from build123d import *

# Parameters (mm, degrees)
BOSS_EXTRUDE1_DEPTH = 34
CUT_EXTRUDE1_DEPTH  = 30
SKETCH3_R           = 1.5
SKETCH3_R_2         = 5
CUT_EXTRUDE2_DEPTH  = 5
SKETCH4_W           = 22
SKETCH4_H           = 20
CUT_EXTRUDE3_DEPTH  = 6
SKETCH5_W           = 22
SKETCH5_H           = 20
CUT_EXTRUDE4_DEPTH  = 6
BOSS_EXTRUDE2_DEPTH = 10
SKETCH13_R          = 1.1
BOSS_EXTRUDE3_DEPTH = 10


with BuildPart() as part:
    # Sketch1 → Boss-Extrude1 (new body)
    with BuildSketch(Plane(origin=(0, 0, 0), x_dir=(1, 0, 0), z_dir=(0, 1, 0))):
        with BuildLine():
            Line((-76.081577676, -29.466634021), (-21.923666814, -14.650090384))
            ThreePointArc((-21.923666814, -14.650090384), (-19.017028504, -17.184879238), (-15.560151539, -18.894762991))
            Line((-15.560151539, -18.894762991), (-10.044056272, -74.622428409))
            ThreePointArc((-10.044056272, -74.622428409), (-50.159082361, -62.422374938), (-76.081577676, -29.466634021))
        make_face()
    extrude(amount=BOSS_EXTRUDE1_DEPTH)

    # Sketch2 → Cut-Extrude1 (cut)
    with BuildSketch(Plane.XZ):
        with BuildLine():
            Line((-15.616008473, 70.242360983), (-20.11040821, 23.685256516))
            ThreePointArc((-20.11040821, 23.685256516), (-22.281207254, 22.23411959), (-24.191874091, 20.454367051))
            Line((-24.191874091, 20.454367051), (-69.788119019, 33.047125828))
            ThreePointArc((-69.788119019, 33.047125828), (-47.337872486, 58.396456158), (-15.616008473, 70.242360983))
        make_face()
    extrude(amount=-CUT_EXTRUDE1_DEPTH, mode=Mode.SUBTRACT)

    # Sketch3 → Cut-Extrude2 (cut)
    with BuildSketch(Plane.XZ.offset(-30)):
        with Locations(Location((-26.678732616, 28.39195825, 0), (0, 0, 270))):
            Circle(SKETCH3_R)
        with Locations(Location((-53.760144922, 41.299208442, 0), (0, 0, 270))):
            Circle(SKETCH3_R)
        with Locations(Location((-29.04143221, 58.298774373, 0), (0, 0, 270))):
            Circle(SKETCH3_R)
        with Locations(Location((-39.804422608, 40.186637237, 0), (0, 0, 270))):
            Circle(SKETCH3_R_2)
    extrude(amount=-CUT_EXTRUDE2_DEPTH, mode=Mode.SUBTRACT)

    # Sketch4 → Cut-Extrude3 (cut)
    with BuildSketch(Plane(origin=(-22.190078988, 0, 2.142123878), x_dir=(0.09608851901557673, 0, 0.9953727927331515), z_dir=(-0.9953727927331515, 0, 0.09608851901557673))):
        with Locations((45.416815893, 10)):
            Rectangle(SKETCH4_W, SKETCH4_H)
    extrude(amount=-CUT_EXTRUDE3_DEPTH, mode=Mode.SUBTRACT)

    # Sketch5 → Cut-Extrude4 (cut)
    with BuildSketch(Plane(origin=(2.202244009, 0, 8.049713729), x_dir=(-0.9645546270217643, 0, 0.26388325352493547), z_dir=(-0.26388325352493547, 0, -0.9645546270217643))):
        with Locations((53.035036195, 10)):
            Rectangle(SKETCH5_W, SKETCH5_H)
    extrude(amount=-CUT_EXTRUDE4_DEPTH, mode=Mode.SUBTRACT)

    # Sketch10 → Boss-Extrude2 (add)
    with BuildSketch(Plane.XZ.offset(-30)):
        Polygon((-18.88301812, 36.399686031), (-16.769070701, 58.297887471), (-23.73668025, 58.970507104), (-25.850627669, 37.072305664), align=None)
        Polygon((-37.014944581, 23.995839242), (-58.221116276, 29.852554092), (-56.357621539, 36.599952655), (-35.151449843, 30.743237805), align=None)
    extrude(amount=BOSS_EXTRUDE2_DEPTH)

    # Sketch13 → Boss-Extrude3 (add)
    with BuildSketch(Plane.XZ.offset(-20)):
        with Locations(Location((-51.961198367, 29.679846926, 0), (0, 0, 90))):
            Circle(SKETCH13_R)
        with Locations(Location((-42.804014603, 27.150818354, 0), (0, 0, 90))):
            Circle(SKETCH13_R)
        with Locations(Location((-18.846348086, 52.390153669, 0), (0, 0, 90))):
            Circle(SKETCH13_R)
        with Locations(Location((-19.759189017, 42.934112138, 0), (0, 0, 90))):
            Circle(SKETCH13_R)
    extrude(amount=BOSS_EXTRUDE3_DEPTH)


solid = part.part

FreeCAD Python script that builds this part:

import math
import FreeCAD as App
import Part
import Sketcher
from FreeCAD import Vector
Q = App.Units.Quantity

doc = App.newDocument("Part")
body = doc.addObject("PartDesign::Body", "Body")

sketch1 = body.newObject("Sketcher::SketchObject", "Sketch")
sketch1.AttachmentSupport = (doc.getObject("XZ_Plane"), [""])
sketch1.MapMode = "FlatFace"
sketch1.addGeometry(Part.LineSegment(Vector(-22, 15, 0), Vector(-76, 29, 0)), False)
sketch1.addGeometry(Part.ArcOfCircle(Part.Circle(Vector(-11, 5, 0), Vector(0, 0, 1), 70), math.radians(89), math.radians(159)), False)
sketch1.addGeometry(Part.LineSegment(Vector(-10, 75, 0), Vector(-16, 19, 0)), False)
sketch1.addGeometry(Part.ArcOfCircle(Part.Circle(Vector(-11, 5, 0), Vector(0, 0, 1), 15), math.radians(109), math.radians(138)), False)
sketch1.addConstraint(Sketcher.Constraint("Coincident", 0, 2, 1, 2))
sketch1.addConstraint(Sketcher.Constraint("Coincident", 1, 1, 2, 1))
sketch1.addConstraint(Sketcher.Constraint("Coincident", 2, 2, 3, 1))
sketch1.addConstraint(Sketcher.Constraint("Coincident", 3, 2, 0, 1))
sketch1.addConstraint(Sketcher.Constraint("Coincident", 3, 3, 1, 3))
sketch1.addConstraint(Sketcher.Constraint("Radius", 3, Q("15 mm")))
sketch1.addConstraint(Sketcher.Constraint("Distance", 2, Q("56 mm")))
sketch1.addConstraint(Sketcher.Constraint("Radius", 1, Q("69.91921 mm")))
sketch1.addConstraint(Sketcher.Constraint("Distance", 0, Q("56.148101 mm")))
sketch1.addConstraint(Sketcher.Constraint("DistanceY", 3, 3, 0, 2, Q("24.760401 mm")))
sketch1.addConstraint(Sketcher.Constraint("DistanceY", -1, 1, 1, 1, Q("74.622428 mm")))
sketch1.addConstraint(Sketcher.Constraint("DistanceX", 2, 2, -1, 1, Q("15.560152 mm")))
sketch1.addConstraint(Sketcher.Constraint("DistanceX", 0, 2, 1, 1, Q("66.037521 mm")))
pad1 = body.newObject("PartDesign::Pad", "Pad")
pad1.Profile = sketch1
pad1.Length = 34
pad1.Reversed = True

sketch2 = body.newObject("Sketcher::SketchObject", "Sketch001")
sketch2.AttachmentSupport = (doc.getObject("XZ_Plane"), [""])
sketch2.MapMode = "FlatFace"
sketch2.addGeometry(Part.LineSegment(Vector(-20, 24, 0), Vector(-16, 70, 0)), False)
sketch2.addGeometry(Part.ArcOfCircle(Part.Circle(Vector(-8, 1, 0), Vector(0, 0, 1), 70), math.radians(96), math.radians(152)), False)
sketch2.addGeometry(Part.LineSegment(Vector(-70, 33, 0), Vector(-24, 20, 0)), False)
sketch2.addGeometry(Part.ArcOfCircle(Part.Circle(Vector(-12, 9, 0), Vector(0, 0, 1), 16), math.radians(119.16), math.radians(137.57)), False)
sketch2.addConstraint(Sketcher.Constraint("Coincident", 0, 2, 1, 1))
sketch2.addConstraint(Sketcher.Constraint("Coincident", 1, 2, 2, 1))
sketch2.addConstraint(Sketcher.Constraint("Coincident", 2, 2, 3, 2))
sketch2.addConstraint(Sketcher.Constraint("Coincident", 3, 1, 0, 1))
sketch2.addConstraint(Sketcher.Constraint("Radius", 1, Q("70 mm")))
sketch2.addConstraint(Sketcher.Constraint("Radius", 3, Q("16.268028 mm")))
sketch2.addConstraint(Sketcher.Constraint("DistanceX", 3, 1, 0, 2, Q("4.4944 mm")))
sketch2.addConstraint(Sketcher.Constraint("DistanceX", 1, 3, -1, 1, Q("7.715649 mm")))
sketch2.addConstraint(Sketcher.Constraint("DistanceX", 0, 2, -1, 1, Q("15.616008 mm")))
sketch2.addConstraint(Sketcher.Constraint("DistanceY", -1, 1, 0, 2, Q("70.242361 mm")))
sketch2.addConstraint(Sketcher.Constraint("DistanceX", 1, 2, -1, 1, Q("69.788119 mm")))
sketch2.addConstraint(Sketcher.Constraint("DistanceY", 1, 3, 3, 3, Q("8.789212 mm")))
sketch2.addConstraint(Sketcher.Constraint("DistanceX", 2, 2, 3, 3, Q("12.007759 mm")))
sketch2.addConstraint(Sketcher.Constraint("DistanceY", 2, 2, 3, 1, Q("3.230889 mm")))
pocket1 = body.newObject("PartDesign::Pocket", "Pocket")
pocket1.Profile = sketch2
pocket1.Length = 30

sketch3 = body.newObject("Sketcher::SketchObject", "Sketch002")
sketch3.AttachmentSupport = (doc.getObject("XZ_Plane"), [""])
sketch3.MapMode = "FlatFace"
sketch3.AttachmentOffset = App.Placement(Vector(0, 0, -30), App.Rotation())
sketch3.addGeometry(Part.Circle(Vector(-26.7, 28.4, 0), Vector(0, 0, 1), 1.5), False)
sketch3.addGeometry(Part.Circle(Vector(-53.8, 41.3, 0), Vector(0, 0, 1), 1.5), False)
sketch3.addGeometry(Part.Circle(Vector(-29, 58.3, 0), Vector(0, 0, 1), 1.5), False)
sketch3.addGeometry(Part.Circle(Vector(-39.8, 40.2, 0), Vector(0, 0, 1), 5), False)
sketch3.addConstraint(Sketcher.Constraint("Equal", 0, 1))
sketch3.addConstraint(Sketcher.Constraint("Equal", 1, 2))
sketch3.addConstraint(Sketcher.Constraint("Diameter", 0, Q("3 mm")))
sketch3.addConstraint(Sketcher.Constraint("Diameter", 3, Q("10 mm")))
sketch3.addConstraint(Sketcher.Constraint("DistanceX", 2, 3, 0, 3, Q("2.3627 mm")))
sketch3.addConstraint(Sketcher.Constraint("DistanceY", -1, 1, 0, 3, Q("28.391958 mm")))
sketch3.addConstraint(Sketcher.Constraint("DistanceY", -1, 1, 1, 3, Q("41.299208 mm")))
sketch3.addConstraint(Sketcher.Constraint("DistanceY", 3, 3, 1, 3, Q("1.112571 mm")))
sketch3.addConstraint(Sketcher.Constraint("DistanceX", 3, 3, 0, 3, Q("13.12569 mm")))
sketch3.addConstraint(Sketcher.Constraint("DistanceX", 0, 3, -1, 1, Q("26.678733 mm")))
sketch3.addConstraint(Sketcher.Constraint("DistanceX", 1, 3, -1, 1, Q("53.760145 mm")))
sketch3.addConstraint(Sketcher.Constraint("DistanceY", -1, 1, 2, 3, Q("58.298774 mm")))
pocket2 = body.newObject("PartDesign::Pocket", "Pocket001")
pocket2.Profile = sketch3
pocket2.Length = 5

sketch4 = body.newObject("Sketcher::SketchObject", "Sketch003")
sketch4.Placement = App.Placement(Vector(-22.190079, 0, 2.142124), App.Rotation(Vector(0.096088519, 0, 0.995372793), Vector(0, 1.000000001, 0), Vector(-0.995372793, 0, 0.096088519), "ZXY"))
sketch4.addGeometry(Part.LineSegment(Vector(34, 20, 0), Vector(34, 0, 0)), False)
sketch4.addGeometry(Part.LineSegment(Vector(34, 0, 0), Vector(56, 0, 0)), False)
sketch4.addGeometry(Part.LineSegment(Vector(56, 0, 0), Vector(56, 20, 0)), False)
sketch4.addGeometry(Part.LineSegment(Vector(56, 20, 0), Vector(34, 20, 0)), False)
sketch4.addConstraint(Sketcher.Constraint("Coincident", 0, 2, 1, 1))
sketch4.addConstraint(Sketcher.Constraint("Coincident", 1, 2, 2, 1))
sketch4.addConstraint(Sketcher.Constraint("Coincident", 2, 2, 3, 1))
sketch4.addConstraint(Sketcher.Constraint("Coincident", 3, 2, 0, 1))
sketch4.addConstraint(Sketcher.Constraint("Vertical", 0))
sketch4.addConstraint(Sketcher.Constraint("Horizontal", 1))
sketch4.addConstraint(Sketcher.Constraint("Vertical", 2))
sketch4.addConstraint(Sketcher.Constraint("Horizontal", 3))
sketch4.addConstraint(Sketcher.Constraint("PointOnObject", 0, 2, -1))
sketch4.addConstraint(Sketcher.Constraint("DistanceX", 1, 1, 1, 2, Q("22 mm")))
sketch4.addConstraint(Sketcher.Constraint("DistanceY", 0, 2, 0, 1, Q("20 mm")))
sketch4.addConstraint(Sketcher.Constraint("DistanceX", -1, 1, 0, 2, Q("34.416816 mm")))
pocket3 = body.newObject("PartDesign::Pocket", "Pocket002")
pocket3.Profile = sketch4
pocket3.Length = 6

sketch5 = body.newObject("Sketcher::SketchObject", "Sketch004")
sketch5.Placement = App.Placement(Vector(2.202244, 0, 8.049714), App.Rotation(Vector(-0.964554627, 0, 0.263883254), Vector(0, 1, 0), Vector(-0.263883254, 0, -0.964554627), "ZXY"))
sketch5.addGeometry(Part.LineSegment(Vector(42, 20, 0), Vector(42, 0, 0)), False)
sketch5.addGeometry(Part.LineSegment(Vector(42, 0, 0), Vector(64, 0, 0)), False)
sketch5.addGeometry(Part.LineSegment(Vector(64, 0, 0), Vector(64, 20, 0)), False)
sketch5.addGeometry(Part.LineSegment(Vector(64, 20, 0), Vector(42, 20, 0)), False)
sketch5.addConstraint(Sketcher.Constraint("Coincident", 0, 2, 1, 1))
sketch5.addConstraint(Sketcher.Constraint("Coincident", 1, 2, 2, 1))
sketch5.addConstraint(Sketcher.Constraint("Coincident", 2, 2, 3, 1))
sketch5.addConstraint(Sketcher.Constraint("Coincident", 3, 2, 0, 1))
sketch5.addConstraint(Sketcher.Constraint("Vertical", 0))
sketch5.addConstraint(Sketcher.Constraint("Horizontal", 1))
sketch5.addConstraint(Sketcher.Constraint("Vertical", 2))
sketch5.addConstraint(Sketcher.Constraint("Horizontal", 3))
sketch5.addConstraint(Sketcher.Constraint("PointOnObject", 0, 2, -1))
sketch5.addConstraint(Sketcher.Constraint("DistanceX", 1, 1, 1, 2, Q("22 mm")))
sketch5.addConstraint(Sketcher.Constraint("DistanceY", 0, 2, 0, 1, Q("20 mm")))
sketch5.addConstraint(Sketcher.Constraint("DistanceX", -1, 1, 0, 2, Q("42.035036 mm")))
pocket4 = body.newObject("PartDesign::Pocket", "Pocket003")
pocket4.Profile = sketch5
pocket4.Length = 6

sketch6 = body.newObject("Sketcher::SketchObject", "Sketch005")
sketch6.AttachmentSupport = (doc.getObject("XZ_Plane"), [""])
sketch6.MapMode = "FlatFace"
sketch6.AttachmentOffset = App.Placement(Vector(0, 0, -30), App.Rotation())
sketch6.addGeometry(Part.LineSegment(Vector(-19, 36, 0), Vector(-17, 58, 0)), False)
sketch6.addGeometry(Part.LineSegment(Vector(-17, 58, 0), Vector(-24, 59, 0)), False)
sketch6.addGeometry(Part.LineSegment(Vector(-24, 59, 0), Vector(-26, 37, 0)), False)
sketch6.addGeometry(Part.LineSegment(Vector(-26, 37, 0), Vector(-19, 36, 0)), False)
sketch6.addGeometry(Part.LineSegment(Vector(-58, 30, 0), Vector(-37, 24, 0)), False)
sketch6.addGeometry(Part.LineSegment(Vector(-37, 24, 0), Vector(-35, 31, 0)), False)
sketch6.addGeometry(Part.LineSegment(Vector(-35, 31, 0), Vector(-56, 37, 0)), False)
sketch6.addGeometry(Part.LineSegment(Vector(-56, 37, 0), Vector(-58, 30, 0)), False)
sketch6.addConstraint(Sketcher.Constraint("Coincident", 0, 2, 1, 1))
sketch6.addConstraint(Sketcher.Constraint("Coincident", 1, 2, 2, 1))
sketch6.addConstraint(Sketcher.Constraint("Coincident", 2, 2, 3, 1))
sketch6.addConstraint(Sketcher.Constraint("Coincident", 3, 2, 0, 1))
sketch6.addConstraint(Sketcher.Constraint("Coincident", 4, 2, 5, 1))
sketch6.addConstraint(Sketcher.Constraint("Coincident", 5, 2, 6, 1))
sketch6.addConstraint(Sketcher.Constraint("Coincident", 6, 2, 7, 1))
sketch6.addConstraint(Sketcher.Constraint("Coincident", 7, 2, 4, 1))
sketch6.addConstraint(Sketcher.Constraint("Perpendicular", 0, 1))
sketch6.addConstraint(Sketcher.Constraint("Perpendicular", 1, 2))
sketch6.addConstraint(Sketcher.Constraint("Perpendicular", 2, 3))
sketch6.addConstraint(Sketcher.Constraint("Perpendicular", 4, 5))
sketch6.addConstraint(Sketcher.Constraint("Perpendicular", 5, 6))
sketch6.addConstraint(Sketcher.Constraint("Perpendicular", 6, 7))
sketch6.addConstraint(Sketcher.Constraint("Equal", 3, 5))
sketch6.addConstraint(Sketcher.Constraint("Distance", 0, Q("22 mm")))
sketch6.addConstraint(Sketcher.Constraint("Distance", 1, Q("7 mm")))
sketch6.addConstraint(Sketcher.Constraint("DistanceY", 2, 2, 1, 2, Q("21.898201 mm")))
sketch6.addConstraint(Sketcher.Constraint("DistanceY", 4, 2, 5, 2, Q("6.747399 mm")))
sketch6.addConstraint(Sketcher.Constraint("DistanceX", 7, 2, 3, 2, Q("39.338098 mm")))
sketch6.addConstraint(Sketcher.Constraint("DistanceX", 0, 2, -1, 1, Q("16.769071 mm")))
sketch6.addConstraint(Sketcher.Constraint("DistanceY", -1, 1, 4, 2, Q("23.995839 mm")))
sketch6.addConstraint(Sketcher.Constraint("DistanceX", 5, 2, -1, 1, Q("35.15145 mm")))
sketch6.addConstraint(Sketcher.Constraint("DistanceY", 4, 2, 0, 2, Q("34.302048 mm")))
pad2 = body.newObject("PartDesign::Pad", "Pad001")
pad2.Profile = sketch6
pad2.Length = 10

sketch7 = body.newObject("Sketcher::SketchObject", "Sketch006")
sketch7.AttachmentSupport = (doc.getObject("XZ_Plane"), [""])
sketch7.MapMode = "FlatFace"
sketch7.AttachmentOffset = App.Placement(Vector(0, 0, -20), App.Rotation())
sketch7.addGeometry(Part.Circle(Vector(-52, 29.7, 0), Vector(0, 0, 1), 1.1), False)
sketch7.addGeometry(Part.Circle(Vector(-42.8, 27.2, 0), Vector(0, 0, 1), 1.1), False)
sketch7.addGeometry(Part.Circle(Vector(-18.8, 52.4, 0), Vector(0, 0, 1), 1.1), False)
sketch7.addGeometry(Part.Circle(Vector(-19.8, 42.9, 0), Vector(0, 0, 1), 1.1), False)
sketch7.addConstraint(Sketcher.Constraint("Equal", 0, 1))
sketch7.addConstraint(Sketcher.Constraint("Equal", 1, 2))
sketch7.addConstraint(Sketcher.Constraint("Equal", 2, 3))
sketch7.addConstraint(Sketcher.Constraint("Diameter", 0, Q("2.2 mm")))
sketch7.addConstraint(Sketcher.Constraint("DistanceX", 0, 3, -1, 1, Q("51.961198 mm")))
sketch7.addConstraint(Sketcher.Constraint("DistanceY", -1, 1, 1, 3, Q("27.150818 mm")))
sketch7.addConstraint(Sketcher.Constraint("DistanceX", 2, 3, -1, 1, Q("18.846348 mm")))
sketch7.addConstraint(Sketcher.Constraint("DistanceX", 3, 3, -1, 1, Q("19.759189 mm")))
sketch7.addConstraint(Sketcher.Constraint("DistanceY", 1, 3, 0, 3, Q("2.529029 mm")))
sketch7.addConstraint(Sketcher.Constraint("DistanceY", 3, 3, 2, 3, Q("9.456042 mm")))
sketch7.addConstraint(Sketcher.Constraint("DistanceX", 1, 3, -1, 1, Q("42.804015 mm")))
sketch7.addConstraint(Sketcher.Constraint("DistanceY", -1, 1, 2, 3, Q("52.390154 mm")))
pad3 = body.newObject("PartDesign::Pad", "Pad002")
pad3.Profile = sketch7
pad3.Length = 10

doc.recompute()
